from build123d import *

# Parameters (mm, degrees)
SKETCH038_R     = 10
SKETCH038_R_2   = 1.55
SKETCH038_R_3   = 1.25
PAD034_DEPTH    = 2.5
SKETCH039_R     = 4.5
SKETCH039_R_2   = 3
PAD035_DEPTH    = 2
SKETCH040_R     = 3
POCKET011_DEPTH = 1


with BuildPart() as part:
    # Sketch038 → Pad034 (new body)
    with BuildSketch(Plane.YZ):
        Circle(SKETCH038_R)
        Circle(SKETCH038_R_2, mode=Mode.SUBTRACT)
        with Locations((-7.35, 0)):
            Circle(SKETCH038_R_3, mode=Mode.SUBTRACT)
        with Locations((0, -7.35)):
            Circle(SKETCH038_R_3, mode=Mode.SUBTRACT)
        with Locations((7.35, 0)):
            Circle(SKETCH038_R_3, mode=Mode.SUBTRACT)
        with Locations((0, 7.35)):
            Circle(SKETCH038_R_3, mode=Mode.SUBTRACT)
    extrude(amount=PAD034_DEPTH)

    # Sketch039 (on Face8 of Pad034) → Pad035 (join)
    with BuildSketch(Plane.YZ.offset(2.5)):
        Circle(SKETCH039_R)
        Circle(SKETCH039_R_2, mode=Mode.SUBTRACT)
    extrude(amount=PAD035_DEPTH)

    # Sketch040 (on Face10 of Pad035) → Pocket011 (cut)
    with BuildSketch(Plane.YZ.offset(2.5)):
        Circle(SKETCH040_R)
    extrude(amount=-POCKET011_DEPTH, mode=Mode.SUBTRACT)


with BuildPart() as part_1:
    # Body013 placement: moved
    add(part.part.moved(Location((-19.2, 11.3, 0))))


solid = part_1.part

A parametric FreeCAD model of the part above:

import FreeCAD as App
import Part
import Sketcher

V = App.Vector

doc = App.newDocument("Part")
body = doc.addObject("PartDesign::Body", "Body")

# Sketch on YZ plane
sketch1 = body.newObject("Sketcher::SketchObject", "Sketch")
sketch1.AttachmentSupport = (doc.getObject("YZ_Plane"), [""])
sketch1.MapMode = "FlatFace"
sketch1.addGeometry(Part.Circle(V(0, 0, 0), V(0, 0, 1), 10), False)
sketch1.addGeometry(Part.Circle(V(0, -7.3, 0), V(0, 0, 1), 1.2), False)
sketch1.addGeometry(Part.Circle(V(-7.3, 0, 0), V(0, 0, 1), 1.2), False)
sketch1.addGeometry(Part.Circle(V(0, 0, 0), V(0, 0, 1), 1.6), False)
sketch1.addGeometry(Part.Circle(V(0, 7.3, 0), V(0, 0, 1), 1.2), False)
sketch1.addGeometry(Part.Circle(V(7.3, 0, 0), V(0, 0, 1), 1.2), False)
sketch1.addConstraint(Sketcher.Constraint("Coincident", 0, 3, -1, 1))
sketch1.addConstraint(Sketcher.Constraint("Coincident", 3, 3, -1, 1))
sketch1.addConstraint(Sketcher.Constraint("Equal", 1, 2))
sketch1.addConstraint(Sketcher.Constraint("Equal", 2, 4))
sketch1.addConstraint(Sketcher.Constraint("Equal", 4, 5))
sketch1.addConstraint(Sketcher.Constraint("Symmetric", 1, 3, 4, 3, -1, 1))
sketch1.addConstraint(Sketcher.Constraint("Symmetric", 2, 3, 5, 3, -1, 1))
sketch1.addConstraint(Sketcher.Constraint("PointOnObject", 1, 3, -2))
sketch1.addConstraint(Sketcher.Constraint("PointOnObject", 2, 3, -1))
sketch1.addConstraint(Sketcher.Constraint("Diameter", 0, 20.0))
sketch1.addConstraint(Sketcher.Constraint("Diameter", 1, 2.5))
sketch1.addConstraint(Sketcher.Constraint("Diameter", 3, 3.1))
sketch1.addConstraint(Sketcher.Constraint("DistanceY", 1, 3, 4, 3, 14.7))
sketch1.addConstraint(Sketcher.Constraint("DistanceX", 2, 3, 5, 3, 14.7))
pad1 = body.newObject("PartDesign::Pad", "Pad")
pad1.Profile = sketch1
pad1.Length = 2.5

# Sketch on YZ plane
sketch2 = body.newObject("Sketcher::SketchObject", "Sketch001")
sketch2.AttachmentSupport = (doc.getObject("YZ_Plane"), [""])
sketch2.MapMode = "FlatFace"
sketch2.AttachmentOffset = App.Placement(V(0, 0, 2.5), App.Rotation())
sketch2.addGeometry(Part.Circle(V(0, 0, 0), V(0, 0, 1), 4.5), False)
sketch2.addGeometry(Part.Circle(V(0, 0, 0), V(0, 0, 1), 3), False)
sketch2.addConstraint(Sketcher.Constraint("Coincident", 0, 3, -1, 1))
sketch2.addConstraint(Sketcher.Constraint("Coincident", 1, 3, -1, 1))
sketch2.addConstraint(Sketcher.Constraint("Diameter", 0, 9.0))
sketch2.addConstraint(Sketcher.Constraint("Diameter", 1, 6.0))
pad2 = body.newObject("PartDesign::Pad", "Pad001")
pad2.Profile = sketch2
pad2.Length = 2

# Sketch on YZ plane
sketch3 = body.newObject("Sketcher::SketchObject", "Sketch002")
sketch3.AttachmentSupport = (doc.getObject("YZ_Plane"), [""])
sketch3.MapMode = "FlatFace"
sketch3.AttachmentOffset = App.Placement(V(0, 0, 2.5), App.Rotation())
sketch3.addGeometry(Part.Circle(V(0, 0, 0), V(0, 0, 1), 3), False)
sketch3.addConstraint(Sketcher.Constraint("Coincident", 0, 3, -1, 1))
sketch3.addConstraint(Sketcher.Constraint("Diameter", 0, 6.0))
pocket1 = body.newObject("PartDesign::Pocket", "Pocket")
pocket1.Profile = sketch3
pocket1.Length = 1
body2 = doc.addObject("PartDesign::Body", "Body001")
doc.recompute()

body.Placement = App.Placement(V(-19.2, 11.3, 0), App.Rotation(V(0, 0, 1), 0))
boolean = body2.newObject("PartDesign::Boolean", "Boolean")
boolean.Type = "Fuse"
boolean.addObjects([body])

doc.recompute()
